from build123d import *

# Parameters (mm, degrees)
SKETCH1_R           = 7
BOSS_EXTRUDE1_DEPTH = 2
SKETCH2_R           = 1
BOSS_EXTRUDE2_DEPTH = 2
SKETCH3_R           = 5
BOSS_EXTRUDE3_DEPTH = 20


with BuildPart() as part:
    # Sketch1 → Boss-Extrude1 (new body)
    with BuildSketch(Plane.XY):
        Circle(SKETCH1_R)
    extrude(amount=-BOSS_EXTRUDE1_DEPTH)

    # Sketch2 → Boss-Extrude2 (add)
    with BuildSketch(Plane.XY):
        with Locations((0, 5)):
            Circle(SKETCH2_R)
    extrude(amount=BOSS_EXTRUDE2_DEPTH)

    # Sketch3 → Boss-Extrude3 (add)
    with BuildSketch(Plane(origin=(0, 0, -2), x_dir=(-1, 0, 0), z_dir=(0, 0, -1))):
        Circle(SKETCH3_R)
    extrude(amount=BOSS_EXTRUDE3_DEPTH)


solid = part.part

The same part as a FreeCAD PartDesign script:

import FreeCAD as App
import Part
import Sketcher
from FreeCAD import Vector

doc = App.newDocument("Part")
body = doc.addObject("PartDesign::Body", "Body")

# Sketch on XY plane
sketch1 = doc.addObject("Sketcher::SketchObject", "Sketch")
body.addObject(sketch1)
sketch1.AttachmentSupport = (doc.XY_Plane, [""])
sketch1.MapMode = "FlatFace"
sketch1.addGeometry(Part.Circle(Vector(0, 0, 0), Vector(0, 0, 1), 7), False)
sketch1.addConstraint([
    Sketcher.Constraint("Coincident", 0, 3, -1, 1),
    Sketcher.Constraint("Diameter", 0, 14.0),
])
pad1 = doc.addObject("PartDesign::Pad", "Pad")
body.addObject(pad1)
pad1.Profile = sketch1
pad1.Length = 2
pad1.Reversed = True

# Sketch on XY plane
sketch2 = doc.addObject("Sketcher::SketchObject", "Sketch001")
body.addObject(sketch2)
sketch2.AttachmentSupport = (doc.XY_Plane, [""])
sketch2.MapMode = "FlatFace"
sketch2.addGeometry(Part.Circle(Vector(0, 5, 0), Vector(0, 0, 1), 1), False)
sketch2.addConstraint([
    Sketcher.Constraint("PointOnObject", 0, 3, -2),
    Sketcher.Constraint("Diameter", 0, 2.0),
    Sketcher.Constraint("DistanceY", -1, 1, 0, 3, 5.0),
])
pad2 = doc.addObject("PartDesign::Pad", "Pad001")
body.addObject(pad2)
pad2.Profile = sketch2
pad2.Length = 2

# Sketch on XY plane
sketch3 = doc.addObject("Sketcher::SketchObject", "Sketch002")
body.addObject(sketch3)
sketch3.AttachmentSupport = (doc.XY_Plane, [""])
sketch3.MapMode = "FlatFace"
sketch3.AttachmentOffset = App.Placement(Vector(0, 0, -2), App.Rotation())
sketch3.addGeometry(Part.Circle(Vector(0, 0, 0), Vector(0, 0, 1), 5), False)
sketch3.addConstraint([
    Sketcher.Constraint("Coincident", 0, 3, -1, 1),
    Sketcher.Constraint("Diameter", 0, 10.0),
])
pad3 = doc.addObject("PartDesign::Pad", "Pad002")
body.addObject(pad3)
pad3.Profile = sketch3
pad3.Length = 20
pad3.Reversed = True

doc.recompute()
